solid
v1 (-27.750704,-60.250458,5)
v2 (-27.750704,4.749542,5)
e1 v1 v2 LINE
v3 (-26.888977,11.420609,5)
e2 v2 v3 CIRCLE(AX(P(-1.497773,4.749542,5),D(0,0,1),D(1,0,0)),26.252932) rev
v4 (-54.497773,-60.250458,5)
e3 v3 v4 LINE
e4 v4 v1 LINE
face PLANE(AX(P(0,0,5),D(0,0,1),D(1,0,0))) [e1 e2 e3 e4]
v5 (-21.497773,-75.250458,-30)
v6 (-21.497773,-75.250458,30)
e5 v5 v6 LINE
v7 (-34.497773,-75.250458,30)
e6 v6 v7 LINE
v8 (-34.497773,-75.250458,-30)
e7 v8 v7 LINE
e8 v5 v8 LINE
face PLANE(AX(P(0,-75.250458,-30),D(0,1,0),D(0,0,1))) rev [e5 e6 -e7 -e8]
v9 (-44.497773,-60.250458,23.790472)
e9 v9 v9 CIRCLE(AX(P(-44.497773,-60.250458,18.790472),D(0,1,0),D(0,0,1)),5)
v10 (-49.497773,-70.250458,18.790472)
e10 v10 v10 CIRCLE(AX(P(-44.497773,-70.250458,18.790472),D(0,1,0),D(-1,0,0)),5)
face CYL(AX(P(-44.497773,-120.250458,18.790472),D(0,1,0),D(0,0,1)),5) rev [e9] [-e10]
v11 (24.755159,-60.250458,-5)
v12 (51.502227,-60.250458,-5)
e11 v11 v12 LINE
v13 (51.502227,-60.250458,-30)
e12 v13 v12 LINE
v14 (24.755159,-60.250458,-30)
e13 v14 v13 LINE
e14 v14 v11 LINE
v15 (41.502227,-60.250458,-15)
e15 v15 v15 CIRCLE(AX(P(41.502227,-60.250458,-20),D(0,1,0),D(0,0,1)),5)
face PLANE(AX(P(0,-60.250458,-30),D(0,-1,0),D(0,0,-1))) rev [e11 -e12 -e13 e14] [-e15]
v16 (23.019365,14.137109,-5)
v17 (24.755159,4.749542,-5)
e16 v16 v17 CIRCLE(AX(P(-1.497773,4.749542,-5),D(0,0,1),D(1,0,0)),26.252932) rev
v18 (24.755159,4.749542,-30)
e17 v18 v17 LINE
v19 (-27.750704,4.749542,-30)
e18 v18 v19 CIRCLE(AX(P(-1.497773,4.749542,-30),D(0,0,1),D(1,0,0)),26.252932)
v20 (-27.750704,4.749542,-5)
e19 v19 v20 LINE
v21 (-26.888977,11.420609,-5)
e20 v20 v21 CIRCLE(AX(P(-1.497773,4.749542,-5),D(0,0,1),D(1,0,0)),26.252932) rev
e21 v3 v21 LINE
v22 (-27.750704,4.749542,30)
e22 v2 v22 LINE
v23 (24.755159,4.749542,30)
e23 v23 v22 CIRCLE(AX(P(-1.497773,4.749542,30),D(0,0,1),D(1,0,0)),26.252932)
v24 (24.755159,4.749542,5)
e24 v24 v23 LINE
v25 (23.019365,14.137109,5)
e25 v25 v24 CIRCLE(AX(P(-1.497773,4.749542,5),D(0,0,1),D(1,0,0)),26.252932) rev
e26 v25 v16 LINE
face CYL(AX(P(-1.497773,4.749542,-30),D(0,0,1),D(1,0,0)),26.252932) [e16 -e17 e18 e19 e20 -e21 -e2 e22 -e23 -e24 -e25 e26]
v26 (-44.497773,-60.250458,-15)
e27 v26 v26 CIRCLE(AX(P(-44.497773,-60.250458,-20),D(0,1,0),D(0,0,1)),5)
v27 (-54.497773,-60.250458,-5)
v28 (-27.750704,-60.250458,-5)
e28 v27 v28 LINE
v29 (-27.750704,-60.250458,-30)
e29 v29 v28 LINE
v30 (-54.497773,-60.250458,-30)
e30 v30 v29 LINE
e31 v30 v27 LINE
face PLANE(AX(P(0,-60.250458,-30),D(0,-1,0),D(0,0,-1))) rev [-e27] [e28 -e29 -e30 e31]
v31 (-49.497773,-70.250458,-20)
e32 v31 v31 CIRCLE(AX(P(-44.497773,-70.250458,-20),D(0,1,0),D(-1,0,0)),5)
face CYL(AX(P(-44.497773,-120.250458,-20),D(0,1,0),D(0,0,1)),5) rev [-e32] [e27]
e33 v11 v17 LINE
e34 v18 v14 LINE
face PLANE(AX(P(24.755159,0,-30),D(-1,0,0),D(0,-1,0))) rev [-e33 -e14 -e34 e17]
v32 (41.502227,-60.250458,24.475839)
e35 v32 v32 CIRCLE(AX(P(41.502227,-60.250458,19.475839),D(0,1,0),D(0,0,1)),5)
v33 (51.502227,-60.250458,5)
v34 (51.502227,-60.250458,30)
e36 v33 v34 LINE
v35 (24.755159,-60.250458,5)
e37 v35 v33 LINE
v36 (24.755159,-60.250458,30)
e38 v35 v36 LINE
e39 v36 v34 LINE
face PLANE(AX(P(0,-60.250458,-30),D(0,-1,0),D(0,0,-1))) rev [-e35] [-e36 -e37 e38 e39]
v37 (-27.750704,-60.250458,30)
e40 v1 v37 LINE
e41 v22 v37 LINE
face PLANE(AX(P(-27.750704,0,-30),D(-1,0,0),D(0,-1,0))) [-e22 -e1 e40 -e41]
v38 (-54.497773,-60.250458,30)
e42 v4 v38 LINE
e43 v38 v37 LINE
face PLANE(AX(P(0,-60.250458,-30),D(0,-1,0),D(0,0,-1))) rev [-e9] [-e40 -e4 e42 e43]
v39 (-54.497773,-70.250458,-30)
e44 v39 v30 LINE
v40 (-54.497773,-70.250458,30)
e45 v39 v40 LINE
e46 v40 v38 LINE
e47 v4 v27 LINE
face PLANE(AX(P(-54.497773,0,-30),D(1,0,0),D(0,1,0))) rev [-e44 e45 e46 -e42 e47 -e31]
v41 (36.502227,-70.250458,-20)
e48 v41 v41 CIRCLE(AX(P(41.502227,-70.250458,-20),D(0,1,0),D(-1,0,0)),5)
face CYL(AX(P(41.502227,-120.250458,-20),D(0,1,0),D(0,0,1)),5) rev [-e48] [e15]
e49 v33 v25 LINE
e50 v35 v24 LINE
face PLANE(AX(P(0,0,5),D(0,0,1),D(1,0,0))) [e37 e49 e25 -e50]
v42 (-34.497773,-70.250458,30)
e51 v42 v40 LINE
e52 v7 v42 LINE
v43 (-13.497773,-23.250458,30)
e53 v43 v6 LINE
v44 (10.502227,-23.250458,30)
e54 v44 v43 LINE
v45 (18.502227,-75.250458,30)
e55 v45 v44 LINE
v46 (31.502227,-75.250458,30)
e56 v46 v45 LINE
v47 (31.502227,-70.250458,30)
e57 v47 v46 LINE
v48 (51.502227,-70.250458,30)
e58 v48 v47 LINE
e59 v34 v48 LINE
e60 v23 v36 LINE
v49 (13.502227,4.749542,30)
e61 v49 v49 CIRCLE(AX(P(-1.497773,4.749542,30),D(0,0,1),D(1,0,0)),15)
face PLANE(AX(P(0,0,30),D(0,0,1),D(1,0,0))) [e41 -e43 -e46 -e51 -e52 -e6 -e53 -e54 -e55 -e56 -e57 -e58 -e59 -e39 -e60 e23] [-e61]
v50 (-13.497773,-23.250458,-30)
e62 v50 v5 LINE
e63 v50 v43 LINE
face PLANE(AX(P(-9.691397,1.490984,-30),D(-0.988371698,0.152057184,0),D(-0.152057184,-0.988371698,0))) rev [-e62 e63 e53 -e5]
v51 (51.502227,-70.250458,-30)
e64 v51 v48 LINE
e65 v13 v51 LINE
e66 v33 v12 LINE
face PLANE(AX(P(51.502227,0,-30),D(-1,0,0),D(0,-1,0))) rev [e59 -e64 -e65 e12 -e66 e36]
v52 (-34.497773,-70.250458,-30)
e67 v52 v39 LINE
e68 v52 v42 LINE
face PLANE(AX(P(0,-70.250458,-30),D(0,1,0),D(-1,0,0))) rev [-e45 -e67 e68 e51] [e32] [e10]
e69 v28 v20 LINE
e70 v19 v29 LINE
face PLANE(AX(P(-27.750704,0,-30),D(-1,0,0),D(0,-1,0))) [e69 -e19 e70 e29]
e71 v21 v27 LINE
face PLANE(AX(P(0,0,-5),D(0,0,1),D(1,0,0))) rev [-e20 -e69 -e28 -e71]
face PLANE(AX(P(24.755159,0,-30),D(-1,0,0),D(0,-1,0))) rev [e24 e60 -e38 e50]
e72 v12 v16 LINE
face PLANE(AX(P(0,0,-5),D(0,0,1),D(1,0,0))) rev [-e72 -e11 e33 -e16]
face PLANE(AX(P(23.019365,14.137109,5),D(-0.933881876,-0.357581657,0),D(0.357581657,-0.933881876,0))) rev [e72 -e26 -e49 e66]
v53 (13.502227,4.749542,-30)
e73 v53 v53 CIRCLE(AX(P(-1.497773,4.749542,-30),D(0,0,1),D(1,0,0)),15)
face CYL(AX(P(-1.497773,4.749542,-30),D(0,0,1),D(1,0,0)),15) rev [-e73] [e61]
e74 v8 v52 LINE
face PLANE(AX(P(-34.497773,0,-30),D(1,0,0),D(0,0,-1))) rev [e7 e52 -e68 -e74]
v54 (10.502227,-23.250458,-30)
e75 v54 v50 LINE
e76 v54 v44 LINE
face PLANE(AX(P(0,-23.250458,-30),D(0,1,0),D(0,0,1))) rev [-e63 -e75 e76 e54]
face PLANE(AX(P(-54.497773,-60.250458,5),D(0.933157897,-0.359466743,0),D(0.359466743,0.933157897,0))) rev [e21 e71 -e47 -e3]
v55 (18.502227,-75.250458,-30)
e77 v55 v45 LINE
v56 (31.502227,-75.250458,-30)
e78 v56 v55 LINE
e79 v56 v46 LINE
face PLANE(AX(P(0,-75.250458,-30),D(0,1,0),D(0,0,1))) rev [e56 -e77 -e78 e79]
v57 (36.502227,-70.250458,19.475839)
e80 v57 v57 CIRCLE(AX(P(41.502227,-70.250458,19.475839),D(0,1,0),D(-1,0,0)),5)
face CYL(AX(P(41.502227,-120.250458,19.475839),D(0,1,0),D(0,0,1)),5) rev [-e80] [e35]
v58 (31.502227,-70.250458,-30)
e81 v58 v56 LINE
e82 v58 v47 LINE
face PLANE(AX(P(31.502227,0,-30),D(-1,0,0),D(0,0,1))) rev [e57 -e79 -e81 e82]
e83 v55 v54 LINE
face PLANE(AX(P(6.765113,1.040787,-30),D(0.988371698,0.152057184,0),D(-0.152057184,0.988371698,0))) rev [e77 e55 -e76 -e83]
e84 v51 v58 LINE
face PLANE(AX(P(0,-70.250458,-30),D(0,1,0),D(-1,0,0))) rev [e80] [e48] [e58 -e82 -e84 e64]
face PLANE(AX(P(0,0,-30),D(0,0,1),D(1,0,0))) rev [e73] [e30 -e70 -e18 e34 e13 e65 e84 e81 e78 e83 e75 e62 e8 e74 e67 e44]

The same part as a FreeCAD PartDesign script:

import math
import FreeCAD as App
import Part
import Sketcher

V = App.Vector


def add_polygon(sketch, points):
    """Adds a closed chain of lines whose ends are joined by coincident constraints."""
    first, n = sketch.GeometryCount, len(points)
    for a, b in zip(points, points[1:] + points[:1]):
        sketch.addGeometry(Part.LineSegment(App.Vector(*a, 0), App.Vector(*b, 0)), False)
    for i in range(n):
        sketch.addConstraint(Sketcher.Constraint("Coincident", first + i, 2, first + (i + 1) % n, 1))

doc = App.newDocument("Part")
body = doc.addObject("PartDesign::Body", "Body")

# Sketch on XY plane
sketch1 = body.newObject("Sketcher::SketchObject", "Sketch")
sketch1.AttachmentSupport = (doc.getObject("XY_Plane"), [""])
sketch1.MapMode = "FlatFace"
sketch1.addGeometry([
    Part.ArcOfCircle(Part.Circle(V(-1.497773, 4.749542, 0), V(0, 0, 1), 26.252932), math.radians(90), math.radians(180)),  # 0
    Part.LineSegment(V(-27.750704, 4.749542, 0), V(-27.750704, -60.250458, 0)),  # 1
    Part.LineSegment(V(-27.750704, -60.250458, 0), V(-54.497773, -60.250458, 0)),  # 2
    Part.LineSegment(V(-54.497773, -60.250458, 0), V(-54.497773, -70.250458, 0)),  # 3
    Part.LineSegment(V(-54.497773, -70.250458, 0), V(-34.497773, -70.250458, 0)),  # 4
    Part.LineSegment(V(-34.497773, -70.250458, 0), V(-34.497773, -75.250458, 0)),  # 5
    Part.LineSegment(V(-34.497773, -75.250458, 0), V(-21.497773, -75.250458, 0)),  # 6
    Part.LineSegment(V(-21.497773, -75.250458, 0), V(-13.497773, -23.250458, 0)),  # 7
    Part.LineSegment(V(-13.497773, -23.250458, 0), V(10.502227, -23.250458, 0)),  # 8
    Part.LineSegment(V(10.502227, -23.250458, 0), V(18.502227, -75.250458, 0)),  # 9
    Part.LineSegment(V(18.502227, -75.250458, 0), V(31.502227, -75.250458, 0)),  # 10
    Part.LineSegment(V(31.502227, -75.250458, 0), V(31.502227, -70.250458, 0)),  # 11
    Part.LineSegment(V(31.502227, -70.250458, 0), V(51.502227, -70.250458, 0)),  # 12
    Part.LineSegment(V(51.502227, -70.250458, 0), V(51.502227, -60.250458, 0)),  # 13
    Part.LineSegment(V(51.502227, -60.250458, 0), V(24.755159, -60.250458, 0)),  # 14
    Part.LineSegment(V(24.755159, -60.250458, 0), V(24.755159, 4.749542, 0)),  # 15
    Part.ArcOfCircle(Part.Circle(V(-1.497773, 4.749542, 0), V(0, 0, 1), 26.252932), math.radians(0), math.radians(90)),  # 16
], False)
sketch1.addConstraint([
    Sketcher.Constraint("Tangent", 0, 2, 1, 1),
    Sketcher.Constraint("Coincident", 1, 2, 2, 1),
    Sketcher.Constraint("Coincident", 2, 2, 3, 1),
    Sketcher.Constraint("Coincident", 3, 2, 4, 1),
    Sketcher.Constraint("Coincident", 4, 2, 5, 1),
    Sketcher.Constraint("Coincident", 5, 2, 6, 1),
    Sketcher.Constraint("Coincident", 6, 2, 7, 1),
    Sketcher.Constraint("Coincident", 7, 2, 8, 1),
    Sketcher.Constraint("Coincident", 8, 2, 9, 1),
    Sketcher.Constraint("Coincident", 9, 2, 10, 1),
    Sketcher.Constraint("Coincident", 10, 2, 11, 1),
    Sketcher.Constraint("Coincident", 11, 2, 12, 1),
    Sketcher.Constraint("Coincident", 12, 2, 13, 1),
    Sketcher.Constraint("Coincident", 13, 2, 14, 1),
    Sketcher.Constraint("Coincident", 14, 2, 15, 1),
    Sketcher.Constraint("Tangent", 15, 2, 16, 1),
    Sketcher.Constraint("Tangent", 16, 2, 0, 1),
    Sketcher.Constraint("Vertical", 1),
    Sketcher.Constraint("Horizontal", 2),
    Sketcher.Constraint("Vertical", 3),
    Sketcher.Constraint("Horizontal", 4),
    Sketcher.Constraint("Vertical", 5),
    Sketcher.Constraint("Horizontal", 6),
    Sketcher.Constraint("Horizontal", 8),
    Sketcher.Constraint("Horizontal", 10),
    Sketcher.Constraint("Vertical", 11),
    Sketcher.Constraint("Horizontal", 12),
    Sketcher.Constraint("Vertical", 13),
    Sketcher.Constraint("Horizontal", 14),
    Sketcher.Constraint("Vertical", 15),
    Sketcher.Constraint("Equal", 0, 16),
    Sketcher.Constraint("Horizontal", 6, 2, 9, 2),
    Sketcher.Constraint("Horizontal", 4, 2, 11, 2),
    Sketcher.Constraint("Horizontal", 2, 2, 13, 2),
    Sketcher.Constraint("Vertical", 0, 3, 16, 2),
    Sketcher.Constraint("Equal", 6, 10),
    Sketcher.Constraint("Equal", 4, 12),
    Sketcher.Constraint("Equal", 2, 14),
    Sketcher.Constraint("Equal", 7, 9),
    Sketcher.Constraint("DistanceX", 4, 1, 4, 2, 20.0),
    Sketcher.Constraint("DistanceX", 6, 1, 6, 2, 13.0),
    Sketcher.Constraint("DistanceX", 8, 1, 8, 2, 24.0),
    Sketcher.Constraint("DistanceY", 1, 2, 1, 1, 65.0),
    Sketcher.Constraint("DistanceY", 3, 2, 3, 1, 10.0),
    Sketcher.Constraint("DistanceY", 5, 2, 5, 1, 5.0),
    Sketcher.Constraint("DistanceX", 2, 2, 16, 3, 53.0),
    Sketcher.Constraint("DistanceY", 7, 2, 16, 3, 28.0),
    Sketcher.Constraint("Radius", 0, 26.252932),
    Sketcher.Constraint("DistanceY", -1, 1, 0, 3, 4.749542),
    Sketcher.Constraint("DistanceX", -1, 1, 14, 2, 24.755159),
])
pad1 = body.newObject("PartDesign::Pad", "Pad")
pad1.Profile = sketch1
pad1.Length = 60
pad1.Reversed = True

# Sketch on XY plane
sketch2 = body.newObject("Sketcher::SketchObject", "Sketch001")
sketch2.AttachmentSupport = (doc.getObject("XY_Plane"), [""])
sketch2.MapMode = "FlatFace"
sketch2.addGeometry(Part.Circle(V(-1.497773, 4.749542, 0), V(0, 0, 1), 15), False)
sketch2.addConstraint([
    Sketcher.Constraint("Diameter", 0, 30.0),
    Sketcher.Constraint("DistanceY", -1, 1, 0, 3, 4.749542),
    Sketcher.Constraint("DistanceX", 0, 3, -1, 1, 1.497773),
])
pocket1 = body.newObject("PartDesign::Pocket", "Pocket")
pocket1.Profile = sketch2
pocket1.Length = 60

# Sketch on XZ plane
sketch3 = body.newObject("Sketcher::SketchObject", "Sketch002")
sketch3.AttachmentSupport = (doc.getObject("XZ_Plane"), [""])
sketch3.MapMode = "FlatFace"
sketch3.AttachmentOffset = App.Placement(V(0, 0, 60.250458), App.Rotation())
sketch3.addGeometry([
    Part.Circle(V(41.502227, -10.524161, 0), V(0, 0, 1), 5),
    Part.Circle(V(41.502227, -50, 0), V(0, 0, 1), 5),
    Part.Circle(V(-44.497773, -50, 0), V(0, 0, 1), 5),
    Part.Circle(V(-44.497773, -11.209528, 0), V(0, 0, 1), 5),
], False)
sketch3.addConstraint([
    Sketcher.Constraint("Equal", 0, 1),
    Sketcher.Constraint("Equal", 1, 2),
    Sketcher.Constraint("Equal", 2, 3),
    Sketcher.Constraint("Horizontal", 1, 3, 2, 3),
    Sketcher.Constraint("Vertical", 0, 3, 1, 3),
    Sketcher.Constraint("Vertical", 2, 3, 3, 3),
    Sketcher.Constraint("Diameter", 0, 10.0),
    Sketcher.Constraint("DistanceY", 1, 3, -1, 1, 50.0),
    Sketcher.Constraint("DistanceX", 2, 3, 1, 3, 86.0),
    Sketcher.Constraint("DistanceY", 0, 3, -1, 1, 10.524161),
    Sketcher.Constraint("DistanceY", 3, 3, -1, 1, 11.209528),
    Sketcher.Constraint("DistanceX", -1, 1, 0, 3, 41.502227),
])
pocket2 = body.newObject("PartDesign::Pocket", "Pocket001")
pocket2.Profile = sketch3
pocket2.Length = 60
pocket2.Reversed = True
body2 = doc.addObject("PartDesign::Body", "Body001")
doc.recompute()

body.Placement = App.Placement(V(0, 0, 30), App.Rotation(V(0, 0, 1), 0))
boolean = body2.newObject("PartDesign::Boolean", "Boolean")
boolean.Type = "Fuse"
boolean.addObjects([body])

# Sketch on XY plane
sketch4 = body2.newObject("Sketcher::SketchObject", "Sketch003")
sketch4.AttachmentSupport = (doc.getObject("XY_Plane001"), [""])
sketch4.MapMode = "FlatFace"
add_polygon(sketch4, [(51.502227, -60.250458), (23.019365, 14.137109), (23.019365, -60.250458)])  # lines 0-2
sketch4.addConstraint([
    Sketcher.Constraint("Vertical", 1),
    Sketcher.Constraint("Horizontal", 2),
    Sketcher.Constraint("Distance", 0, 79.65415),
    Sketcher.Constraint("DistanceX", 2, 1, 2, 2, 28.482863),
    Sketcher.Constraint("DistanceY", -1, 1, 0, 2, 14.137109),
    Sketcher.Constraint("DistanceX", -1, 1, 0, 2, 23.019365),
])
pad2 = body2.newObject("PartDesign::Pad", "Pad001")
pad2.Profile = sketch4
pad2.Length = 10
pad2.Midplane = True

# Sketch on XY plane
sketch5 = body2.newObject("Sketcher::SketchObject", "Sketch004")
sketch5.AttachmentSupport = (doc.getObject("XY_Plane001"), [""])
sketch5.MapMode = "FlatFace"
add_polygon(sketch5, [(-26.888977, 11.420609), (-54.497773, -60.250458), (-26.888977, -60.250458)])  # lines 0-2
sketch5.addConstraint([
    Sketcher.Constraint("Horizontal", 1),
    Sketcher.Constraint("Vertical", 2),
    Sketcher.Constraint("DistanceX", 1, 1, 1, 2, 27.608795),
    Sketcher.Constraint("DistanceY", 2, 1, 2, 2, 71.671068),
    Sketcher.Constraint("DistanceY", 0, 2, -1, 1, 60.250458),
    Sketcher.Constraint("DistanceX", 0, 2, -1, 1, 54.497773),
])
pad3 = body2.newObject("PartDesign::Pad", "Pad002")
pad3.Profile = sketch5
pad3.Length = 10
pad3.Midplane = True

doc.recompute()
